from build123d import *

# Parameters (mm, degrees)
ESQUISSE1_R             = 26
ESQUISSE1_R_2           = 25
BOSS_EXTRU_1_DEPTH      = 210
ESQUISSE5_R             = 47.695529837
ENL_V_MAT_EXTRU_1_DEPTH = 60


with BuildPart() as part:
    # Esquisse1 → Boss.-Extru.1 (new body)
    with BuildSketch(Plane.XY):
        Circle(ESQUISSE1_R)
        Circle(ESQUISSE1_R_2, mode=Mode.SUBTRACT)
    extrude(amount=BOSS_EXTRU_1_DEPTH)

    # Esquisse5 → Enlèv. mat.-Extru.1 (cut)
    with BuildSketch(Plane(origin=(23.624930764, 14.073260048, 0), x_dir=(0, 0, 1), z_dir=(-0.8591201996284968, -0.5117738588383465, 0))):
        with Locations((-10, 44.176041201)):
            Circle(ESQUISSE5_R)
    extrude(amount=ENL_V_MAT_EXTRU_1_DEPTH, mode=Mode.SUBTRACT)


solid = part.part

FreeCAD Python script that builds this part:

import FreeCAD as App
import Part
import Sketcher
from FreeCAD import Vector
Q = App.Units.Quantity

doc = App.newDocument("Part")
body = doc.addObject("PartDesign::Body", "Body")

# Sketch on XY plane
sketch1 = doc.addObject("Sketcher::SketchObject", "Sketch")
body.addObject(sketch1)
sketch1.AttachmentSupport = (doc.XY_Plane, [""])
sketch1.MapMode = "FlatFace"
sketch1.addGeometry([
    Part.Circle(Vector(0, 0, 0), Vector(0, 0, 1), 26),
    Part.Circle(Vector(0, 0, 0), Vector(0, 0, 1), 25),
], False)
sketch1.addConstraint([
    Sketcher.Constraint("Coincident", 0, 3, -1, 1),
    Sketcher.Constraint("Coincident", 1, 3, -1, 1),
    Sketcher.Constraint("Diameter", 0, Q("52 mm")),
    Sketcher.Constraint("Diameter", 1, Q("50 mm")),
])
pad1 = doc.addObject("PartDesign::Pad", "Pad")
body.addObject(pad1)
pad1.Profile = sketch1
pad1.Length = 210

# Sketch on an angled plane
sketch2 = doc.addObject("Sketcher::SketchObject", "Sketch001")
body.addObject(sketch2)
sketch2.Placement = App.Placement(Vector(23.624931, 14.07326, 0), App.Rotation(Vector(0, 0, 1), Vector(-0.511773859, 0.8591202, 0), Vector(-0.8591202, -0.511773859, 0), "ZXY"))
sketch2.addGeometry(Part.Circle(Vector(-10, 44, 0), Vector(0, 0, 1), 48), False)
sketch2.addConstraint([
    Sketcher.Constraint("DistanceX", 0, 3, -1, 1, Q("10 mm")),
    Sketcher.Constraint("Diameter", 0, Q("95.39106 mm")),
    Sketcher.Constraint("DistanceY", -1, 1, 0, 3, Q("44.176041 mm")),
])
pocket1 = doc.addObject("PartDesign::Pocket", "Pocket")
body.addObject(pocket1)
pocket1.Profile = sketch2
pocket1.Length = 60
pocket1.Reversed = True

doc.recompute()
